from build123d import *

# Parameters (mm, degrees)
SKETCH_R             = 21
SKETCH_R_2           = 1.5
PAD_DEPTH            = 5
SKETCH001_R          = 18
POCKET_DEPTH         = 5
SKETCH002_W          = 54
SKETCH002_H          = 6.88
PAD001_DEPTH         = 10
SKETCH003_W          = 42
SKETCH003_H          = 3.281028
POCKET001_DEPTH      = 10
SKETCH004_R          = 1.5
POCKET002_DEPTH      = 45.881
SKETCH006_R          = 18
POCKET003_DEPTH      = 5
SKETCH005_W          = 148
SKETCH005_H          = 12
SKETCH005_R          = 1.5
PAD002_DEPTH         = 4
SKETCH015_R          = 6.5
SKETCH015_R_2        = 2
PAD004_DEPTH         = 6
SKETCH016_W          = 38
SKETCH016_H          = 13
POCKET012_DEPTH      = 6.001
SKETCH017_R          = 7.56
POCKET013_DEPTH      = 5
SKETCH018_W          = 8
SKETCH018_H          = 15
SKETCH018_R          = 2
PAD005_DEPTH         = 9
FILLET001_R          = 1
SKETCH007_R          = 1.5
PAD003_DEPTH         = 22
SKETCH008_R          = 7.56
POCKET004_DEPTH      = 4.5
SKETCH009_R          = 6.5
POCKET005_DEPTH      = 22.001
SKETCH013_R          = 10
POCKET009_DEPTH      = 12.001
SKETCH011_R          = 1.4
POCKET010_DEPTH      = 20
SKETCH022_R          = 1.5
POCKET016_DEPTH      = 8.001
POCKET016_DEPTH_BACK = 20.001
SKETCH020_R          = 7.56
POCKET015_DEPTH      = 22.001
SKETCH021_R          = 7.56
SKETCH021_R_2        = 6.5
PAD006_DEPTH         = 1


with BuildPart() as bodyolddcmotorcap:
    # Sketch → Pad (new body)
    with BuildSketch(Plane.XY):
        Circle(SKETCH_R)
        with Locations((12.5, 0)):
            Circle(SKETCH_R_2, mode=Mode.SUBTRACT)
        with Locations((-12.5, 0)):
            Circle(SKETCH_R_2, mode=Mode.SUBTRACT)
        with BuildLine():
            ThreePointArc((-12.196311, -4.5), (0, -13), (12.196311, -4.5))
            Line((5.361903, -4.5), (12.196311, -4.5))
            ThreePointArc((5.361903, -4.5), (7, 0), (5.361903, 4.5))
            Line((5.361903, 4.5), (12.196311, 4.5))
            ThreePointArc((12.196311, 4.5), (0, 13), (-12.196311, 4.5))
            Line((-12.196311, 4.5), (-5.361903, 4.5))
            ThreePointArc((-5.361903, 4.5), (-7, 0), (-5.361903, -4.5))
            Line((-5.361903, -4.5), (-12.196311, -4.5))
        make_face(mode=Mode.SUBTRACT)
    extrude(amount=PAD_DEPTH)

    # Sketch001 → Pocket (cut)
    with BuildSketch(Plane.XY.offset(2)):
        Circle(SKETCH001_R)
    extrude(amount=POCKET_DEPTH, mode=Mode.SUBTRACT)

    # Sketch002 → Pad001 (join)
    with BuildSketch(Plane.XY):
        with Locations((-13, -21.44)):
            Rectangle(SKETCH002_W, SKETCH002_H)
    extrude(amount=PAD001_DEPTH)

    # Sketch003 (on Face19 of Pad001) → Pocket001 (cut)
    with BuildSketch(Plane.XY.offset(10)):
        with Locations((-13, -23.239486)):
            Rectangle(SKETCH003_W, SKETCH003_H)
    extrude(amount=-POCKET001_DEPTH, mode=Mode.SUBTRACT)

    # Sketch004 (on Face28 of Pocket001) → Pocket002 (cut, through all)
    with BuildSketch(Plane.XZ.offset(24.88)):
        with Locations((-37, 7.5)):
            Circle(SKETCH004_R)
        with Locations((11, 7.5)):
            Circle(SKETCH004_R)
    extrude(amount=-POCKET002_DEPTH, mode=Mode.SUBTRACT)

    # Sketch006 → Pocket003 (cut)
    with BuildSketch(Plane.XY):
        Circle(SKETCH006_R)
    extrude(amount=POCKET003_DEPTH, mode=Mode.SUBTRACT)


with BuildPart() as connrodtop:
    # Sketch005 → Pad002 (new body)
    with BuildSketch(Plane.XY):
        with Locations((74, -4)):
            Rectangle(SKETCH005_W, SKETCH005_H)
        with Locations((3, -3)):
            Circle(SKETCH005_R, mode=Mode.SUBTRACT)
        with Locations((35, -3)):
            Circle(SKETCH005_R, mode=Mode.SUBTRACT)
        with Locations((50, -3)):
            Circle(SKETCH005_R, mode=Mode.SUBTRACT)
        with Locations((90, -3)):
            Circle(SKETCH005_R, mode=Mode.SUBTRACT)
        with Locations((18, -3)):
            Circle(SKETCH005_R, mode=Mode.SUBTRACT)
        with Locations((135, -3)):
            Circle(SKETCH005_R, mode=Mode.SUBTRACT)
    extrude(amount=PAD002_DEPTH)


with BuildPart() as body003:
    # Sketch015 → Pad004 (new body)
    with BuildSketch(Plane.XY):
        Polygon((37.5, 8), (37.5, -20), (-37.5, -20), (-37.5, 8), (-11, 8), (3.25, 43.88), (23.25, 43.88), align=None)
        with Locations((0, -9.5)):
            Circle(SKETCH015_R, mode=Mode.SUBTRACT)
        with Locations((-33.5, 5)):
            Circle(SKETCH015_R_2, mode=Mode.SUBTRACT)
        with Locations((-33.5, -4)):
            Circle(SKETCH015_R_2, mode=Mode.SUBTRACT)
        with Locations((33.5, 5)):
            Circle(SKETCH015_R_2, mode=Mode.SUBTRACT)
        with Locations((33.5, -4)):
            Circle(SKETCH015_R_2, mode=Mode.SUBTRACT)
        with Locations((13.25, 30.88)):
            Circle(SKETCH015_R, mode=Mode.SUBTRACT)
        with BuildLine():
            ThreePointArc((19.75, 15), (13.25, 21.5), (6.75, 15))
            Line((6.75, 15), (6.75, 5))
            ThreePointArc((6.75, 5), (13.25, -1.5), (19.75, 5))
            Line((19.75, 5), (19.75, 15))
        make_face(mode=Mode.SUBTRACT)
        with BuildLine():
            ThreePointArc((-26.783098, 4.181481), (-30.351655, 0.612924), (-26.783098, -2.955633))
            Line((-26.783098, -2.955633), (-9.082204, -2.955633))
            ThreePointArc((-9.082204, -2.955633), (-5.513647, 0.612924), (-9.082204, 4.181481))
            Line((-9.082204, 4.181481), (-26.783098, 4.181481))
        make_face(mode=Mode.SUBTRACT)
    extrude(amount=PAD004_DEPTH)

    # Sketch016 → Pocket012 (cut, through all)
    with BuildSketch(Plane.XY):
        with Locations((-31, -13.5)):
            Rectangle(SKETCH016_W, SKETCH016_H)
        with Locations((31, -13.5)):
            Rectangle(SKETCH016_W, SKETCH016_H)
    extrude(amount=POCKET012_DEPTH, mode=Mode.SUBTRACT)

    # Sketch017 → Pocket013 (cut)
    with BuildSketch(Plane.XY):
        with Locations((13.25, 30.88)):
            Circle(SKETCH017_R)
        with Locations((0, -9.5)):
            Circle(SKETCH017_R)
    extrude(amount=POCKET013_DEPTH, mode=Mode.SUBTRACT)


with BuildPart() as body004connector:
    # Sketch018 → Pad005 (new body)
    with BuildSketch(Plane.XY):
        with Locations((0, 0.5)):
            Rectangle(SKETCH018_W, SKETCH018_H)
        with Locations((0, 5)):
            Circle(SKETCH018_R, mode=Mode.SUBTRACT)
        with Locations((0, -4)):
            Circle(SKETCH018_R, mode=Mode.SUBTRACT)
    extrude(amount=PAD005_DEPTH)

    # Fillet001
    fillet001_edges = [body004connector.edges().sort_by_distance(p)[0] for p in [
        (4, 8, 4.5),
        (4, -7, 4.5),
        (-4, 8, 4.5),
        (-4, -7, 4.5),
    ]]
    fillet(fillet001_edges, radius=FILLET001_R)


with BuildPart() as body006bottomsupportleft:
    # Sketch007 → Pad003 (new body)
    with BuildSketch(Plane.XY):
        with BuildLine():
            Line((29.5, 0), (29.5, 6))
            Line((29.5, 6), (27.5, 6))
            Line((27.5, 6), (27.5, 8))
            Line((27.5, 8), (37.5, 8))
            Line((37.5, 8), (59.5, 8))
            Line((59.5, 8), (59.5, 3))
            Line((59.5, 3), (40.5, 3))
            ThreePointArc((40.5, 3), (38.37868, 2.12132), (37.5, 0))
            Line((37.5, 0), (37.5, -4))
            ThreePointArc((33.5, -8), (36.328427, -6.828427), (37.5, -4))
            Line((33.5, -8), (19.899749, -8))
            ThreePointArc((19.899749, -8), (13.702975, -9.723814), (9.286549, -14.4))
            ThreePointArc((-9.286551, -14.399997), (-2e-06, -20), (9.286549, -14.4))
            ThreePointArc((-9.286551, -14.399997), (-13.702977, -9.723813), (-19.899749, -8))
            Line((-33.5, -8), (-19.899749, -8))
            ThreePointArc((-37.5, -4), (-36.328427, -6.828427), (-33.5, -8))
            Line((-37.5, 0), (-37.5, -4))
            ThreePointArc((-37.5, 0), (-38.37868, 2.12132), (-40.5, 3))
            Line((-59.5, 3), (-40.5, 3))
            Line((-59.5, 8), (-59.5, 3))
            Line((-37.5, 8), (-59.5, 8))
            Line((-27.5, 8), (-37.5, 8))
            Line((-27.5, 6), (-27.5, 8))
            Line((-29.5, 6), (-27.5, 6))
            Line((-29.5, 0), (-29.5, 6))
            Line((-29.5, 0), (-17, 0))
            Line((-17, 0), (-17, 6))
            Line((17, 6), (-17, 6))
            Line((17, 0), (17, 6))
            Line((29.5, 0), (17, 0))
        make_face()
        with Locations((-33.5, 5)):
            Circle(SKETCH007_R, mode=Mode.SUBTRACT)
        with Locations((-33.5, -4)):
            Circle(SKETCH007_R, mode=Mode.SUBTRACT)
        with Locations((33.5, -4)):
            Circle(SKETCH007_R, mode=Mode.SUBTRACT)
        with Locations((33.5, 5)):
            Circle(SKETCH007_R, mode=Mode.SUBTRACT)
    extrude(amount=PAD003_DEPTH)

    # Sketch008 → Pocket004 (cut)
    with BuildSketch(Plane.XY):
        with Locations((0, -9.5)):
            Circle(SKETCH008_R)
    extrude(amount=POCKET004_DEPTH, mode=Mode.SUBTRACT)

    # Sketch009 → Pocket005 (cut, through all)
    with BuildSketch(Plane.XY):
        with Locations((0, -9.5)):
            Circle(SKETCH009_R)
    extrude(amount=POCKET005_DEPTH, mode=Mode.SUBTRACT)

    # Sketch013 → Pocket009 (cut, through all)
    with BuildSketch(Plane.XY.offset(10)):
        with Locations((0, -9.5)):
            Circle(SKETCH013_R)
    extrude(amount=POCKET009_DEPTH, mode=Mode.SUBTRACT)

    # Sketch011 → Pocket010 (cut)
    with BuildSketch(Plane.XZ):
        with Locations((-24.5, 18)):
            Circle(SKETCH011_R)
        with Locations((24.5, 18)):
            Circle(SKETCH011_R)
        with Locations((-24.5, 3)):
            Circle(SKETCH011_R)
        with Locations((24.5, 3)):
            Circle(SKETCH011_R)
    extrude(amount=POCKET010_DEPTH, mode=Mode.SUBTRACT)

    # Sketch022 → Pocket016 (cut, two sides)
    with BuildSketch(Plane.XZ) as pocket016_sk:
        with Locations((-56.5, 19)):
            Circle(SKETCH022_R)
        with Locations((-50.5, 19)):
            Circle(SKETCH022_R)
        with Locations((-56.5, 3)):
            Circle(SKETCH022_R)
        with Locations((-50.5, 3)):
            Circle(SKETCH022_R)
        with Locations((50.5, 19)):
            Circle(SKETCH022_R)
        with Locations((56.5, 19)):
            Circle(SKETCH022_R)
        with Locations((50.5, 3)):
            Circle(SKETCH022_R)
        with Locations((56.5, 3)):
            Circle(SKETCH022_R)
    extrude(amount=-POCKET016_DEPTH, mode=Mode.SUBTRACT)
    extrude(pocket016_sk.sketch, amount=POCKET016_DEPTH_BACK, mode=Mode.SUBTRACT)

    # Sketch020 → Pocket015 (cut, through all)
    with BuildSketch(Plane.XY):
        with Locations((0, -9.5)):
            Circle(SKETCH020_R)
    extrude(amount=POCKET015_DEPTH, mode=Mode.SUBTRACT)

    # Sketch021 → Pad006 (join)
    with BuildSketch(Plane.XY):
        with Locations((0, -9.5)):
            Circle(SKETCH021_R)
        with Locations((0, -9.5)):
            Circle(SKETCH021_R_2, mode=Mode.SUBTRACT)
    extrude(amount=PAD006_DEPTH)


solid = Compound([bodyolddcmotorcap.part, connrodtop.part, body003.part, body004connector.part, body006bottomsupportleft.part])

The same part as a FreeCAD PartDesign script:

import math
import FreeCAD as App
import Part
import Sketcher

V = App.Vector
Q = App.Units.Quantity


def edges_at(feature, points):
    """Names of the edges that pass closest to the given points."""
    edges = feature.Shape.Edges
    near = lambda p: min(range(len(edges)), key=lambda i: edges[i].distToShape(Part.Vertex(*p))[0])
    return sorted({f"Edge{near(p) + 1}" for p in points})


def add_polygon(sketch, points):
    """Adds a closed chain of lines whose ends are joined by coincident constraints."""
    first, n = sketch.GeometryCount, len(points)
    for a, b in zip(points, points[1:] + points[:1]):
        sketch.addGeometry(Part.LineSegment(App.Vector(*a, 0), App.Vector(*b, 0)), False)
    for i in range(n):
        sketch.addConstraint(Sketcher.Constraint("Coincident", first + i, 2, first + (i + 1) % n, 1))

doc = App.newDocument("Part")
body = doc.addObject("PartDesign::Body", "Body")

sketch1 = body.newObject("Sketcher::SketchObject", "Sketch")
sketch1.AttachmentSupport = (doc.getObject("XY_Plane"), [""])
sketch1.MapMode = "FlatFace"
sketch1.addGeometry([
    Part.Circle(V(0, 0, 0), V(0, 0, 1), 21),
    Part.Circle(V(-12.5, 0, 0), V(0, 0, 1), 1.5),
    Part.ArcOfCircle(Part.Circle(V(0, 0, 0), V(0, 0, 1), 13), math.radians(-160), math.radians(-20)),
    Part.LineSegment(V(-12.2, -4.5, 0), V(-5.4, -4.5, 0)),
    Part.ArcOfCircle(Part.Circle(V(0, 0, 0), V(0, 0, 1), 7), math.radians(140), math.radians(220)),
    Part.LineSegment(V(-5.4, 4.5, 0), V(-12.2, 4.5, 0)),
    Part.ArcOfCircle(Part.Circle(V(0, 0, 0), V(0, 0, 1), 13), math.radians(20), math.radians(160)),
    Part.LineSegment(V(12.2, 4.5, 0), V(5.4, 4.5, 0)),
    Part.ArcOfCircle(Part.Circle(V(0, 0, 0), V(0, 0, 1), 7), math.radians(-40), math.radians(40)),
    Part.LineSegment(V(5.4, -4.5, 0), V(12.2, -4.5, 0)),
    Part.Circle(V(12.5, 0, 0), V(0, 0, 1), 1.5),
], False)
sketch1.addConstraint([
    Sketcher.Constraint("Coincident", 2, 1, 3, 1),
    Sketcher.Constraint("Coincident", 3, 2, 4, 2),
    Sketcher.Constraint("Coincident", 4, 1, 5, 1),
    Sketcher.Constraint("Coincident", 5, 2, 6, 2),
    Sketcher.Constraint("Coincident", 6, 1, 7, 1),
    Sketcher.Constraint("Coincident", 7, 2, 8, 2),
    Sketcher.Constraint("Coincident", 8, 1, 9, 1),
    Sketcher.Constraint("Coincident", 9, 2, 2, 2),
    Sketcher.Constraint("Horizontal", 3),
    Sketcher.Constraint("Horizontal", 5),
    Sketcher.Constraint("Horizontal", 7),
    Sketcher.Constraint("Horizontal", 9),
    Sketcher.Constraint("Coincident", 0, 3, -1, 1),
    Sketcher.Constraint("Coincident", 2, 3, -1, 1),
    Sketcher.Constraint("Coincident", 4, 3, -1, 1),
    Sketcher.Constraint("Coincident", 6, 3, -1, 1),
    Sketcher.Constraint("Coincident", 8, 3, -1, 1),
    Sketcher.Constraint("Equal", 2, 6),
    Sketcher.Constraint("Equal", 4, 8),
    Sketcher.Constraint("Equal", 1, 10),
    Sketcher.Constraint("Symmetric", 1, 3, 10, 3, -1, 1),
    Sketcher.Constraint("PointOnObject", 1, 3, -1),
    Sketcher.Constraint("Horizontal", 5, 2, 6, 1),
    Sketcher.Constraint("Horizontal", 3, 2, 8, 1),
    Sketcher.Constraint("Vertical", 3, 2, 4, 1),
    Sketcher.Constraint("Diameter", 0, Q("42 mm")),
    Sketcher.Constraint("Diameter", 1, Q("3 mm")),
    Sketcher.Constraint("Radius", 2, Q("13 mm")),
    Sketcher.Constraint("Radius", 4, Q("7.000001 mm")),
    Sketcher.Constraint("DistanceY", 2, 1, 5, 2, Q("9 mm")),
    Sketcher.Constraint("DistanceX", 1, 3, -1, 1, Q("12.5 mm")),
])
pad1 = body.newObject("PartDesign::Pad", "Pad")
pad1.Profile = sketch1
pad1.Length = 5

sketch2 = body.newObject("Sketcher::SketchObject", "Sketch001")
sketch2.AttachmentSupport = (doc.getObject("XY_Plane"), [""])
sketch2.MapMode = "FlatFace"
sketch2.AttachmentOffset = App.Placement(V(0, 0, 2), App.Rotation())
sketch2.addGeometry(Part.Circle(V(0, 0, 0), V(0, 0, 1), 18), False)
sketch2.addConstraint([
    Sketcher.Constraint("Coincident", 0, 3, -1, 1),
    Sketcher.Constraint("Diameter", 0, Q("36 mm")),
])
pocket1 = body.newObject("PartDesign::Pocket", "Pocket")
pocket1.Profile = sketch2
pocket1.Length = 5
pocket1.Reversed = True

sketch3 = body.newObject("Sketcher::SketchObject", "Sketch002")
sketch3.AttachmentSupport = (doc.getObject("XY_Plane"), [""])
sketch3.MapMode = "FlatFace"
add_polygon(sketch3, [(-40, -18), (-40, -25), (14, -25), (14, -18)])
sketch3.addConstraint([
    Sketcher.Constraint("Vertical", 0),
    Sketcher.Constraint("Horizontal", 1),
    Sketcher.Constraint("Vertical", 2),
    Sketcher.Constraint("Horizontal", 3),
    Sketcher.Constraint("DistanceX", 1, 1, 1, 2, Q("54 mm")),
    Sketcher.Constraint("DistanceX", 0, 2, -1, 1, Q("40 mm")),
    Sketcher.Constraint("DistanceY", 2, 2, -1, 1, Q("18 mm")),
    Sketcher.Constraint("DistanceY", 0, 2, 0, 1, Q("6.88 mm")),
])
pad2 = body.newObject("PartDesign::Pad", "Pad001")
pad2.Profile = sketch3
pad2.Length = 10

sketch4 = body.newObject("Sketcher::SketchObject", "Sketch003")
sketch4.AttachmentSupport = (doc.getObject("XY_Plane"), [""])
sketch4.MapMode = "FlatFace"
sketch4.AttachmentOffset = App.Placement(V(0, 0, 10), App.Rotation())
add_polygon(sketch4, [(-34, -21.6), (-34, -24.9), (8, -24.9), (8, -21.6)])
sketch4.addConstraint([
    Sketcher.Constraint("Vertical", 0),
    Sketcher.Constraint("Horizontal", 1),
    Sketcher.Constraint("Vertical", 2),
    Sketcher.Constraint("Horizontal", 3),
    Sketcher.Constraint("DistanceX", 1, 1, 1, 2, Q("42 mm")),
    Sketcher.Constraint("DistanceX", 0, 2, -1, 1, Q("34 mm")),
    Sketcher.Constraint("DistanceY", 0, 2, -1, 1, Q("24.88 mm")),
    Sketcher.Constraint("DistanceY", 0, 2, 0, 1, Q("3.281028 mm")),
])
pocket2 = body.newObject("PartDesign::Pocket", "Pocket001")
pocket2.Profile = sketch4
pocket2.Length = 10

sketch5 = body.newObject("Sketcher::SketchObject", "Sketch004")
sketch5.AttachmentSupport = (doc.getObject("XZ_Plane"), [""])
sketch5.MapMode = "FlatFace"
sketch5.AttachmentOffset = App.Placement(V(0, 0, 24.88), App.Rotation())
sketch5.addGeometry([
    Part.Circle(V(-37, 7.5, 0), V(0, 0, 1), 1.5),
    Part.Circle(V(11, 7.5, 0), V(0, 0, 1), 1.5),
], False)
sketch5.addConstraint([
    Sketcher.Constraint("Equal", 0, 1),
    Sketcher.Constraint("Horizontal", 0, 3, 1, 3),
    Sketcher.Constraint("Diameter", 0, Q("3 mm")),
    Sketcher.Constraint("DistanceX", 0, 3, -1, 1, Q("37 mm")),
    Sketcher.Constraint("DistanceX", -1, 1, 1, 3, Q("11 mm")),
    Sketcher.Constraint("DistanceY", -1, 1, 0, 3, Q("7.5 mm")),
])
pocket3 = body.newObject("PartDesign::Pocket", "Pocket002")
pocket3.Profile = sketch5
pocket3.Type = "ThroughAll"

sketch6 = body.newObject("Sketcher::SketchObject", "Sketch005")
sketch6.AttachmentSupport = (doc.getObject("XY_Plane"), [""])
sketch6.MapMode = "FlatFace"
sketch6.addGeometry(Part.Circle(V(0, 0, 0), V(0, 0, 1), 18), False)
sketch6.addConstraint([
    Sketcher.Constraint("Coincident", 0, 3, -1, 1),
    Sketcher.Constraint("Diameter", 0, Q("36 mm")),
])
pocket4 = body.newObject("PartDesign::Pocket", "Pocket003")
pocket4.Profile = sketch6
pocket4.Length = 5
pocket4.Reversed = True
body2 = doc.addObject("PartDesign::Body", "Body001")

sketch7 = body2.newObject("Sketcher::SketchObject", "Sketch006")
sketch7.AttachmentSupport = (doc.getObject("XY_Plane001"), [""])
sketch7.MapMode = "FlatFace"
add_polygon(sketch7, [(0, 2), (0, -10), (148, -10), (148, 2)])
sketch7.addGeometry(Part.Circle(V(3, -3, 0), V(0, 0, 1), 1.5), False)
sketch7.addGeometry(Part.Circle(V(18, -3, 0), V(0, 0, 1), 1.5), False)
sketch7.addGeometry(Part.Circle(V(35, -3, 0), V(0, 0, 1), 1.5), False)
sketch7.addGeometry(Part.Circle(V(50, -3, 0), V(0, 0, 1), 1.5), False)
sketch7.addGeometry(Part.Circle(V(90, -3, 0), V(0, 0, 1), 1.5), False)
sketch7.addGeometry(Part.Circle(V(135, -3, 0), V(0, 0, 1), 1.5), False)
sketch7.addConstraint([
    Sketcher.Constraint("Vertical", 0),
    Sketcher.Constraint("Horizontal", 1),
    Sketcher.Constraint("Vertical", 2),
    Sketcher.Constraint("Horizontal", 3),
    Sketcher.Constraint("Equal", 4, 5),
    Sketcher.Constraint("Equal", 5, 6),
    Sketcher.Constraint("Equal", 6, 7),
    Sketcher.Constraint("Equal", 7, 8),
    Sketcher.Constraint("Equal", 8, 9),
    Sketcher.Constraint("PointOnObject", 0, 2, -2),
    Sketcher.Constraint("Horizontal", 4, 3, 5, 3),
    Sketcher.Constraint("Horizontal", 5, 3, 6, 3),
    Sketcher.Constraint("Horizontal", 6, 3, 7, 3),
    Sketcher.Constraint("Horizontal", 7, 3, 8, 3),
    Sketcher.Constraint("Horizontal", 8, 3, 9, 3),
    Sketcher.Constraint("Diameter", 4, Q("3 mm")),
    Sketcher.Constraint("DistanceX", 1, 1, 1, 2, Q("148 mm")),
    Sketcher.Constraint("DistanceY", 0, 2, 0, 1, Q("12 mm")),
    Sketcher.Constraint("DistanceX", -1, 1, 4, 3, Q("3 mm")),
    Sketcher.Constraint("DistanceY", 4, 3, -1, 1, Q("3 mm")),
    Sketcher.Constraint("DistanceX", -1, 1, 5, 3, Q("18 mm")),
    Sketcher.Constraint("DistanceX", -1, 1, 6, 3, Q("35 mm")),
    Sketcher.Constraint("DistanceX", -1, 1, 7, 3, Q("50 mm")),
    Sketcher.Constraint("DistanceX", -1, 1, 8, 3, Q("90 mm")),
    Sketcher.Constraint("DistanceX", -1, 1, 9, 3, Q("135 mm")),
    Sketcher.Constraint("DistanceY", 0, 2, -1, 1, Q("10 mm")),
])
pad3 = body2.newObject("PartDesign::Pad", "Pad002")
pad3.Profile = sketch7
pad3.Length = 4
body3 = doc.addObject("PartDesign::Body", "Body002")

sketch8 = body3.newObject("Sketcher::SketchObject", "Sketch007")
sketch8.AttachmentSupport = (doc.getObject("XY_Plane002"), [""])
sketch8.MapMode = "FlatFace"
add_polygon(sketch8, [(37.5, -20), (37.5, 8), (23.2, 43.9), (3.2, 43.9), (-11, 8), (-37.5, 8), (-37.5, -20)])
sketch8.addGeometry(Part.Circle(V(33.5, -4, 0), V(0, 0, 1), 2), False)
sketch8.addGeometry(Part.Circle(V(33.5, 5, 0), V(0, 0, 1), 2), False)
sketch8.addGeometry(Part.LineSegment(V(19.8, 15, 0), V(19.8, 5, 0)), False)
sketch8.addGeometry(Part.ArcOfCircle(Part.Circle(V(13.2, 5, 0), V(0, 0, 1), 6.5), math.radians(180), math.radians(360)), False)
sketch8.addGeometry(Part.LineSegment(V(6.8, 5, 0), V(6.8, 15, 0)), False)
sketch8.addGeometry(Part.ArcOfCircle(Part.Circle(V(13.2, 15, 0), V(0, 0, 1), 6.5), math.radians(0), math.radians(180)), False)
sketch8.addGeometry(Part.Circle(V(0, -9.5, 0), V(0, 0, 1), 6.5), False)
sketch8.addGeometry(Part.Circle(V(-33.5, -4, 0), V(0, 0, 1), 2), False)
sketch8.addGeometry(Part.LineSegment(V(-26.8, 4.2, 0), V(-9.1, 4.2, 0)), False)
sketch8.addGeometry(Part.ArcOfCircle(Part.Circle(V(-9.1, 0.6, 0), V(0, 0, 1), 3.6), math.radians(-90), math.radians(90)), False)
sketch8.addGeometry(Part.LineSegment(V(-9.1, -3, 0), V(-26.8, -3, 0)), False)
sketch8.addGeometry(Part.ArcOfCircle(Part.Circle(V(-26.8, 0.6, 0), V(0, 0, 1), 3.6), math.radians(90), math.radians(270)), False)
sketch8.addGeometry(Part.Circle(V(-33.5, 5, 0), V(0, 0, 1), 2), False)
sketch8.addGeometry(Part.Circle(V(13.2, 30.9, 0), V(0, 0, 1), 6.5), False)
sketch8.addConstraint([
    Sketcher.Constraint("Tangent", 9, 2, 10, 2),
    Sketcher.Constraint("Tangent", 10, 1, 11, 1),
    Sketcher.Constraint("Tangent", 11, 2, 12, 2),
    Sketcher.Constraint("Tangent", 12, 1, 9, 1),
    Sketcher.Constraint("Tangent", 15, 2, 16, 2),
    Sketcher.Constraint("Tangent", 16, 1, 17, 1),
    Sketcher.Constraint("Tangent", 17, 2, 18, 2),
    Sketcher.Constraint("Tangent", 18, 1, 15, 1),
    Sketcher.Constraint("Vertical", 0),
    Sketcher.Constraint("Horizontal", 2),
    Sketcher.Constraint("Horizontal", 4),
    Sketcher.Constraint("Vertical", 5),
    Sketcher.Constraint("Horizontal", 6),
    Sketcher.Constraint("Vertical", 9),
    Sketcher.Constraint("Vertical", 11),
    Sketcher.Constraint("Horizontal", 15),
    Sketcher.Constraint("Horizontal", 17),
    Sketcher.Constraint("Equal", 7, 8),
    Sketcher.Constraint("Equal", 12, 13),
    Sketcher.Constraint("Equal", 8, 14),
    Sketcher.Constraint("Equal", 14, 19),
    Sketcher.Constraint("Equal", 13, 20),
    Sketcher.Constraint("Symmetric", 7, 3, 14, 3, -2),
    Sketcher.Constraint("Symmetric", 8, 3, 19, 3, -2),
    Sketcher.Constraint("Symmetric", 0, 2, 4, 2, -2),
    Sketcher.Constraint("PointOnObject", 13, 3, -2),
    Sketcher.Constraint("Horizontal", 8, 3, 10, 3),
    Sketcher.Constraint("Vertical", 7, 3, 8, 3),
    Sketcher.Constraint("Vertical", 12, 3, 20, 3),
    Sketcher.Constraint("Equal", 1, 3),
    Sketcher.Constraint("Diameter", 7, Q("4 mm")),
    Sketcher.Constraint("Diameter", 13, Q("13 mm")),
    Sketcher.Constraint("DistanceX", 2, 2, 2, 1, Q("20 mm")),
    Sketcher.Constraint("DistanceX", 6, 1, 6, 2, Q("75 mm")),
    Sketcher.Constraint("DistanceY", 0, 1, 0, 2, Q("28 mm")),
    Sketcher.Constraint("DistanceY", 9, 2, 9, 1, Q("10 mm")),
    Sketcher.Constraint("DistanceX", 4, 2, 4, 1, Q("26.5 mm")),
    Sketcher.Constraint("DistanceY", 7, 3, -1, 1, Q("4 mm")),
    Sketcher.Constraint("DistanceY", -1, 1, 8, 3, Q("5 mm")),
    Sketcher.Constraint("DistanceY", -1, 1, 0, 2, Q("8 mm")),
    Sketcher.Constraint("DistanceX", 14, 3, 7, 3, Q("67 mm")),
    Sketcher.Constraint("DistanceX", 20, 3, 1, 2, Q("10 mm")),
    Sketcher.Constraint("DistanceY", 20, 3, 1, 2, Q("13 mm")),
    Sketcher.Constraint("DistanceY", 13, 3, -1, 1, Q("9.5 mm")),
    Sketcher.Constraint("DistanceY", -1, 1, 20, 3, Q("30.88 mm")),
    Sketcher.Constraint("Radius", 16, Q("3.568557 mm")),
    Sketcher.Constraint("DistanceX", 15, 1, 15, 2, Q("17.700894 mm")),
    Sketcher.Constraint("DistanceY", -1, 1, 15, 2, Q("4.181481 mm")),
    Sketcher.Constraint("DistanceX", 16, 3, -1, 1, Q("9.082204 mm")),
])
pad4 = body3.newObject("PartDesign::Pad", "Pad003")
pad4.Profile = sketch8
pad4.Length = 6

sketch9 = body3.newObject("Sketcher::SketchObject", "Sketch008")
sketch9.AttachmentSupport = (doc.getObject("XY_Plane002"), [""])
sketch9.MapMode = "FlatFace"
add_polygon(sketch9, [(-50, -7), (-50, -20), (-12, -20), (-12, -7)])
add_polygon(sketch9, [(12, -7), (12, -20), (50, -20), (50, -7)])
sketch9.addConstraint([
    Sketcher.Constraint("Vertical", 0),
    Sketcher.Constraint("Horizontal", 1),
    Sketcher.Constraint("Vertical", 2),
    Sketcher.Constraint("Horizontal", 3),
    Sketcher.Constraint("Vertical", 4),
    Sketcher.Constraint("Horizontal", 5),
    Sketcher.Constraint("Vertical", 6),
    Sketcher.Constraint("Horizontal", 7),
    Sketcher.Constraint("Symmetric", 1, 2, 4, 2, -2),
    Sketcher.Constraint("Symmetric", 3, 2, 6, 2, -2),
    Sketcher.Constraint("DistanceX", 1, 1, 1, 2, Q("38 mm")),
    Sketcher.Constraint("DistanceY", 0, 2, 0, 1, Q("13 mm")),
    Sketcher.Constraint("DistanceX", 0, 2, -1, 1, Q("50 mm")),
    Sketcher.Constraint("DistanceY", 0, 2, -1, 1, Q("20 mm")),
])
pocket5 = body3.newObject("PartDesign::Pocket", "Pocket004")
pocket5.Profile = sketch9
pocket5.Type = "ThroughAll"
pocket5.Reversed = True

sketch10 = body3.newObject("Sketcher::SketchObject", "Sketch009")
sketch10.AttachmentSupport = (doc.getObject("XY_Plane002"), [""])
sketch10.MapMode = "FlatFace"
sketch10.addGeometry([
    Part.Circle(V(13, 31, 0), V(0, 0, 1), 8),
    Part.Circle(V(0, -10, 0), V(0, 0, 1), 8),
], False)
sketch10.addConstraint([
    Sketcher.Constraint("Equal", 0, 1),
    Sketcher.Constraint("PointOnObject", 1, 3, -2),
    Sketcher.Constraint("Diameter", 0, Q("15.12 mm")),
    Sketcher.Constraint("DistanceY", 1, 3, -1, 1, Q("9.5 mm")),
    Sketcher.Constraint("DistanceX", -1, 1, 0, 3, Q("13.25 mm")),
    Sketcher.Constraint("DistanceY", -1, 1, 0, 3, Q("30.88 mm")),
])
pocket6 = body3.newObject("PartDesign::Pocket", "Pocket005")
pocket6.Profile = sketch10
pocket6.Length = 5
pocket6.Reversed = True
body4 = doc.addObject("PartDesign::Body", "Body003")

sketch11 = body4.newObject("Sketcher::SketchObject", "Sketch010")
sketch11.AttachmentSupport = (doc.getObject("XY_Plane003"), [""])
sketch11.MapMode = "FlatFace"
add_polygon(sketch11, [(-4, 8), (-4, -7), (4, -7), (4, 8)])
sketch11.addGeometry(Part.Circle(V(0, -4, 0), V(0, 0, 1), 2), False)
sketch11.addGeometry(Part.Circle(V(0, 5, 0), V(0, 0, 1), 2), False)
sketch11.addConstraint([
    Sketcher.Constraint("Vertical", 0),
    Sketcher.Constraint("Horizontal", 1),
    Sketcher.Constraint("Vertical", 2),
    Sketcher.Constraint("Horizontal", 3),
    Sketcher.Constraint("Equal", 4, 5),
    Sketcher.Constraint("PointOnObject", 4, 3, -2),
    Sketcher.Constraint("PointOnObject", 5, 3, -2),
    Sketcher.Constraint("Diameter", 4, Q("4 mm")),
    Sketcher.Constraint("DistanceX", 1, 1, 1, 2, Q("8 mm")),
    Sketcher.Constraint("DistanceY", 0, 2, 0, 1, Q("15 mm")),
    Sketcher.Constraint("DistanceY", 4, 3, -1, 1, Q("4 mm")),
    Sketcher.Constraint("DistanceY", -1, 1, 5, 3, Q("5 mm")),
    Sketcher.Constraint("DistanceX", 0, 2, -1, 1, Q("4 mm")),
    Sketcher.Constraint("DistanceY", 0, 2, -1, 1, Q("7 mm")),
])
pad5 = body4.newObject("PartDesign::Pad", "Pad004")
pad5.Profile = sketch11
pad5.Length = 9
doc.recompute()

fillet = body4.newObject("PartDesign::Fillet", "Fillet")
fillet.Base = (pad5, edges_at(pad5, [
    (4, 8, 4.5),
    (4, -7, 4.5),
    (-4, 8, 4.5),
    (-4, -7, 4.5),
]))
fillet.Radius = 1
body5 = doc.addObject("PartDesign::Body", "Body004")

sketch12 = body5.newObject("Sketcher::SketchObject", "Sketch011")
sketch12.AttachmentSupport = (doc.getObject("XY_Plane004"), [""])
sketch12.MapMode = "FlatFace"
sketch12.addGeometry([
    Part.LineSegment(V(29.5, 6, 0), V(29.5, 0, 0)),
    Part.LineSegment(V(29.5, 0, 0), V(17, 0, 0)),
    Part.LineSegment(V(17, 0, 0), V(17, 6, 0)),
    Part.LineSegment(V(17, 6, 0), V(-17, 6, 0)),
    Part.LineSegment(V(-17, 6, 0), V(-17, 0, 0)),
    Part.LineSegment(V(-17, 0, 0), V(-29.5, 0, 0)),
    Part.LineSegment(V(-29.5, 0, 0), V(-29.5, 6, 0)),
    Part.LineSegment(V(-29.5, 6, 0), V(-27.5, 6, 0)),
    Part.LineSegment(V(-27.5, 6, 0), V(-27.5, 8, 0)),
    Part.LineSegment(V(-27.5, 8, 0), V(-59.5, 8, 0)),
    Part.LineSegment(V(-59.5, 8, 0), V(-59.5, 3, 0)),
    Part.LineSegment(V(-59.5, 3, 0), V(-40.5, 3, 0)),
    Part.ArcOfCircle(Part.Circle(V(-40.5, 0, 0), V(0, 0, 1), 3), math.radians(0), math.radians(90)),
    Part.LineSegment(V(-37.5, 0, 0), V(-37.5, -4, 0)),
    Part.ArcOfCircle(Part.Circle(V(-33.5, -4, 0), V(0, 0, 1), 4), math.radians(-180), math.radians(-90)),
    Part.LineSegment(V(-33.5, -8, 0), V(-19.9, -8, 0)),
    Part.ArcOfCircle(Part.Circle(V(-19.9, -20, 0), V(0, 0, 1), 12), math.radians(28), math.radians(90)),
    Part.ArcOfCircle(Part.Circle(V(0, -9.5, 0), V(0, 0, 1), 10.5), math.radians(-152), math.radians(-28)),
    Part.ArcOfCircle(Part.Circle(V(19.9, -20, 0), V(0, 0, 1), 12), math.radians(90), math.radians(152)),
    Part.LineSegment(V(19.9, -8, 0), V(33.5, -8, 0)),
    Part.ArcOfCircle(Part.Circle(V(33.5, -4, 0), V(0, 0, 1), 4), math.radians(-90), math.radians(0)),
    Part.LineSegment(V(37.5, -4, 0), V(37.5, 0, 0)),
    Part.ArcOfCircle(Part.Circle(V(40.5, 0, 0), V(0, 0, 1), 3), math.radians(90), math.radians(180)),
    Part.LineSegment(V(40.5, 3, 0), V(59.5, 3, 0)),
    Part.LineSegment(V(59.5, 3, 0), V(59.5, 8, 0)),
    Part.LineSegment(V(59.5, 8, 0), V(27.5, 8, 0)),
    Part.LineSegment(V(27.5, 8, 0), V(27.5, 6, 0)),
    Part.LineSegment(V(27.5, 6, 0), V(29.5, 6, 0)),
    Part.Circle(V(33.5, -4, 0), V(0, 0, 1), 1.5),
    Part.Circle(V(-33.5, -4, 0), V(0, 0, 1), 1.5),
    Part.Circle(V(33.5, 5, 0), V(0, 0, 1), 1.5),
    Part.Circle(V(-33.5, 5, 0), V(0, 0, 1), 1.5),
], False)
sketch12.addConstraint([
    Sketcher.Constraint("Coincident", 0, 2, 1, 1),
    Sketcher.Constraint("Coincident", 1, 2, 2, 1),
    Sketcher.Constraint("Coincident", 2, 2, 3, 1),
    Sketcher.Constraint("Coincident", 3, 2, 4, 1),
    Sketcher.Constraint("Coincident", 4, 2, 5, 1),
    Sketcher.Constraint("Coincident", 5, 2, 6, 1),
    Sketcher.Constraint("Coincident", 6, 2, 7, 1),
    Sketcher.Constraint("Coincident", 7, 2, 8, 1),
    Sketcher.Constraint("Coincident", 8, 2, 9, 1),
    Sketcher.Constraint("Coincident", 9, 2, 10, 1),
    Sketcher.Constraint("Coincident", 10, 2, 11, 1),
    Sketcher.Constraint("Tangent", 11, 2, 12, 2),
    Sketcher.Constraint("Tangent", 12, 1, 13, 1),
    Sketcher.Constraint("Tangent", 13, 2, 14, 1),
    Sketcher.Constraint("Tangent", 14, 2, 15, 1),
    Sketcher.Constraint("Tangent", 15, 2, 16, 2),
    Sketcher.Constraint("Tangent", 16, 1, 17, 1),
    Sketcher.Constraint("Tangent", 17, 2, 18, 2),
    Sketcher.Constraint("Tangent", 18, 1, 19, 1),
    Sketcher.Constraint("Tangent", 19, 2, 20, 1),
    Sketcher.Constraint("Tangent", 20, 2, 21, 1),
    Sketcher.Constraint("Tangent", 21, 2, 22, 2),
    Sketcher.Constraint("Tangent", 22, 1, 23, 1),
    Sketcher.Constraint("Coincident", 23, 2, 24, 1),
    Sketcher.Constraint("Coincident", 24, 2, 25, 1),
    Sketcher.Constraint("Coincident", 25, 2, 26, 1),
    Sketcher.Constraint("Coincident", 26, 2, 27, 1),
    Sketcher.Constraint("Coincident", 27, 2, 0, 1),
    Sketcher.Constraint("Vertical", 0),
    Sketcher.Constraint("Horizontal", 1),
    Sketcher.Constraint("Vertical", 2),
    Sketcher.Constraint("Horizontal", 3),
    Sketcher.Constraint("Vertical", 4),
    Sketcher.Constraint("Horizontal", 5),
    Sketcher.Constraint("Vertical", 6),
    Sketcher.Constraint("Horizontal", 7),
    Sketcher.Constraint("Vertical", 8),
    Sketcher.Constraint("Horizontal", 9),
    Sketcher.Constraint("Vertical", 10),
    Sketcher.Constraint("Horizontal", 11),
    Sketcher.Constraint("Vertical", 13),
    Sketcher.Constraint("Horizontal", 15),
    Sketcher.Constraint("Horizontal", 19),
    Sketcher.Constraint("Vertical", 21),
    Sketcher.Constraint("Horizontal", 23),
    Sketcher.Constraint("Vertical", 24),
    Sketcher.Constraint("Horizontal", 25),
    Sketcher.Constraint("Vertical", 26),
    Sketcher.Constraint("Horizontal", 27),
    Sketcher.Constraint("Coincident", 28, 3, 20, 3),
    Sketcher.Constraint("Coincident", 29, 3, 14, 3),
    Sketcher.Constraint("Equal", 16, 18),
    Sketcher.Constraint("Equal", 14, 20),
    Sketcher.Constraint("Equal", 12, 22),
    Sketcher.Constraint("Equal", 28, 29),
    Sketcher.Constraint("Equal", 29, 30),
    Sketcher.Constraint("Equal", 30, 31),
    Sketcher.Constraint("Symmetric", 12, 3, 22, 3, -1, 1),
    Sketcher.Constraint("Symmetric", 1, 2, 4, 2, -1, 1),
    Sketcher.Constraint("Symmetric", 16, 3, 18, 3, -2),
    Sketcher.Constraint("Symmetric", 30, 3, 31, 3, -2),
    Sketcher.Constraint("Symmetric", 0, 2, 5, 2, -2),
    Sketcher.Constraint("Symmetric", 10, 2, 23, 2, -2),
    Sketcher.Constraint("Symmetric", 8, 2, 25, 2, -2),
    Sketcher.Constraint("Horizontal", 3, 2, 6, 2),
    Sketcher.Constraint("Horizontal", 7, 2, 26, 2),
    Sketcher.Constraint("Vertical", 28, 3, 30, 3),
    Sketcher.Constraint("Equal", 27, 8),
    Sketcher.Constraint("Diameter", 28, Q("3 mm")),
    Sketcher.Constraint("Radius", 12, Q("3.000001 mm")),
    Sketcher.Constraint("Radius", 14, Q("4 mm")),
    Sketcher.Constraint("Radius", 16, Q("12 mm")),
    Sketcher.Constraint("Radius", 17, Q("10.5 mm")),
    Sketcher.Constraint("DistanceX", 3, 2, 3, 1, Q("34 mm")),
    Sketcher.Constraint("DistanceX", 7, 1, 7, 2, Q("2 mm")),
    Sketcher.Constraint("DistanceX", 9, 2, 9, 1, Q("32 mm")),
    Sketcher.Constraint("DistanceX", 11, 1, 11, 2, Q("19 mm")),
    Sketcher.Constraint("DistanceY", 0, 2, 0, 1, Q("6 mm")),
    Sketcher.Constraint("DistanceY", 13, 2, 13, 1, Q("4 mm")),
    Sketcher.Constraint("DistanceX", 1, 2, 1, 1, Q("12.5 mm")),
    Sketcher.Constraint("DistanceY", -1, 1, 30, 3, Q("5 mm")),
    Sketcher.Constraint("DistanceY", 17, 3, -1, 1, Q("9.5 mm")),
])
pad6 = body5.newObject("PartDesign::Pad", "Pad005")
pad6.Profile = sketch12
pad6.Length = 22

sketch13 = body5.newObject("Sketcher::SketchObject", "Sketch012")
sketch13.AttachmentSupport = (doc.getObject("XY_Plane004"), [""])
sketch13.MapMode = "FlatFace"
sketch13.addGeometry(Part.Circle(V(0, -10, 0), V(0, 0, 1), 8), False)
sketch13.addConstraint([
    Sketcher.Constraint("PointOnObject", 0, 3, -2),
    Sketcher.Constraint("Diameter", 0, Q("15.12 mm")),
    Sketcher.Constraint("DistanceY", 0, 3, -1, 1, Q("9.5 mm")),
])
pocket7 = body5.newObject("PartDesign::Pocket", "Pocket006")
pocket7.Profile = sketch13
pocket7.Length = 4.5
pocket7.Reversed = True

sketch14 = body5.newObject("Sketcher::SketchObject", "Sketch013")
sketch14.AttachmentSupport = (doc.getObject("XY_Plane004"), [""])
sketch14.MapMode = "FlatFace"
sketch14.addGeometry(Part.Circle(V(0, -10, 0), V(0, 0, 1), 6), False)
sketch14.addConstraint([
    Sketcher.Constraint("PointOnObject", 0, 3, -2),
    Sketcher.Constraint("Diameter", 0, Q("13 mm")),
    Sketcher.Constraint("DistanceY", 0, 3, -1, 1, Q("9.5 mm")),
])
pocket8 = body5.newObject("PartDesign::Pocket", "Pocket007")
pocket8.Profile = sketch14
pocket8.Type = "ThroughAll"
pocket8.Reversed = True

sketch15 = body5.newObject("Sketcher::SketchObject", "Sketch014")
sketch15.AttachmentSupport = (doc.getObject("XY_Plane004"), [""])
sketch15.MapMode = "FlatFace"
sketch15.AttachmentOffset = App.Placement(V(0, 0, 10), App.Rotation())
sketch15.addGeometry(Part.Circle(V(0, -10, 0), V(0, 0, 1), 10), False)
sketch15.addConstraint([
    Sketcher.Constraint("PointOnObject", 0, 3, -2),
    Sketcher.Constraint("Diameter", 0, Q("20 mm")),
    Sketcher.Constraint("DistanceY", 0, 3, -1, 1, Q("9.5 mm")),
])
pocket9 = body5.newObject("PartDesign::Pocket", "Pocket008")
pocket9.Profile = sketch15
pocket9.Type = "ThroughAll"
pocket9.Reversed = True

sketch16 = body5.newObject("Sketcher::SketchObject", "Sketch015")
sketch16.AttachmentSupport = (doc.getObject("XZ_Plane004"), [""])
sketch16.MapMode = "FlatFace"
sketch16.addGeometry([
    Part.Circle(V(-24.5, 18, 0), V(0, 0, 1), 1.4),
    Part.Circle(V(24.5, 18, 0), V(0, 0, 1), 1.4),
    Part.Circle(V(-24.5, 3, 0), V(0, 0, 1), 1.4),
    Part.Circle(V(24.5, 3, 0), V(0, 0, 1), 1.4),
], False)
sketch16.addConstraint([
    Sketcher.Constraint("Equal", 0, 1),
    Sketcher.Constraint("Equal", 1, 2),
    Sketcher.Constraint("Equal", 2, 3),
    Sketcher.Constraint("Symmetric", 0, 3, 1, 3, -2),
    Sketcher.Constraint("Symmetric", 2, 3, 3, 3, -2),
    Sketcher.Constraint("Vertical", 0, 3, 2, 3),
    Sketcher.Constraint("Diameter", 0, Q("2.8 mm")),
    Sketcher.Constraint("DistanceY", -1, 1, 0, 3, Q("18 mm")),
    Sketcher.Constraint("DistanceY", -1, 1, 2, 3, Q("3 mm")),
    Sketcher.Constraint("DistanceX", 0, 3, 1, 3, Q("49 mm")),
])
pocket10 = body5.newObject("PartDesign::Pocket", "Pocket009")
pocket10.Profile = sketch16
pocket10.Length = 20
pocket10.Reversed = True

sketch17 = body5.newObject("Sketcher::SketchObject", "Sketch016")
sketch17.AttachmentSupport = (doc.getObject("XZ_Plane004"), [""])
sketch17.MapMode = "FlatFace"
sketch17.addGeometry([
    Part.Circle(V(-56.5, 19, 0), V(0, 0, 1), 1.5),
    Part.Circle(V(-50.5, 19, 0), V(0, 0, 1), 1.5),
    Part.Circle(V(-56.5, 3, 0), V(0, 0, 1), 1.5),
    Part.Circle(V(-50.5, 3, 0), V(0, 0, 1), 1.5),
    Part.Circle(V(50.5, 19, 0), V(0, 0, 1), 1.5),
    Part.Circle(V(56.5, 19, 0), V(0, 0, 1), 1.5),
    Part.Circle(V(50.5, 3, 0), V(0, 0, 1), 1.5),
    Part.Circle(V(56.5, 3, 0), V(0, 0, 1), 1.5),
], False)
sketch17.addConstraint([
    Sketcher.Constraint("Equal", 0, 1),
    Sketcher.Constraint("Equal", 1, 2),
    Sketcher.Constraint("Equal", 2, 3),
    Sketcher.Constraint("Equal", 3, 4),
    Sketcher.Constraint("Equal", 4, 5),
    Sketcher.Constraint("Equal", 5, 6),
    Sketcher.Constraint("Equal", 6, 7),
    Sketcher.Constraint("Symmetric", 1, 3, 4, 3, -2),
    Sketcher.Constraint("Symmetric", 0, 3, 5, 3, -2),
    Sketcher.Constraint("Symmetric", 3, 3, 6, 3, -2),
    Sketcher.Constraint("Symmetric", 2, 3, 7, 3, -2),
    Sketcher.Constraint("Horizontal", 0, 3, 1, 3),
    Sketcher.Constraint("Horizontal", 2, 3, 3, 3),
    Sketcher.Constraint("Vertical", 0, 3, 2, 3),
    Sketcher.Constraint("Vertical", 1, 3, 3, 3),
    Sketcher.Constraint("Diameter", 0, Q("3 mm")),
    Sketcher.Constraint("DistanceY", -1, 1, 0, 3, Q("19 mm")),
    Sketcher.Constraint("DistanceY", -1, 1, 2, 3, Q("3 mm")),
    Sketcher.Constraint("DistanceX", 0, 3, 1, 3, Q("6 mm")),
    Sketcher.Constraint("DistanceX", 1, 3, 4, 3, Q("101 mm")),
])
pocket11 = body5.newObject("PartDesign::Pocket", "Pocket010")
pocket11.Profile = sketch17
pocket11.Type = "ThroughAll"
pocket11.Midplane = True

sketch18 = body5.newObject("Sketcher::SketchObject", "Sketch017")
sketch18.AttachmentSupport = (doc.getObject("XY_Plane004"), [""])
sketch18.MapMode = "FlatFace"
sketch18.addGeometry(Part.Circle(V(0, -10, 0), V(0, 0, 1), 8), False)
sketch18.addConstraint([
    Sketcher.Constraint("PointOnObject", 0, 3, -2),
    Sketcher.Constraint("Diameter", 0, Q("15.12 mm")),
    Sketcher.Constraint("DistanceY", 0, 3, -1, 1, Q("9.5 mm")),
])
pocket12 = body5.newObject("PartDesign::Pocket", "Pocket011")
pocket12.Profile = sketch18
pocket12.Type = "ThroughAll"
pocket12.Reversed = True

sketch19 = body5.newObject("Sketcher::SketchObject", "Sketch018")
sketch19.AttachmentSupport = (doc.getObject("XY_Plane004"), [""])
sketch19.MapMode = "FlatFace"
sketch19.addGeometry([
    Part.Circle(V(0, -10, 0), V(0, 0, 1), 8),
    Part.Circle(V(0, -10, 0), V(0, 0, 1), 6),
], False)
sketch19.addConstraint([
    Sketcher.Constraint("Coincident", 1, 3, 0, 3),
    Sketcher.Constraint("PointOnObject", 0, 3, -2),
    Sketcher.Constraint("Diameter", 1, Q("13 mm")),
    Sketcher.Constraint("Diameter", 0, Q("15.12 mm")),
    Sketcher.Constraint("DistanceY", 0, 3, -1, 1, Q("9.5 mm")),
])
pad7 = body5.newObject("PartDesign::Pad", "Pad006")
pad7.Profile = sketch19
pad7.Length = 1

doc.recompute()
